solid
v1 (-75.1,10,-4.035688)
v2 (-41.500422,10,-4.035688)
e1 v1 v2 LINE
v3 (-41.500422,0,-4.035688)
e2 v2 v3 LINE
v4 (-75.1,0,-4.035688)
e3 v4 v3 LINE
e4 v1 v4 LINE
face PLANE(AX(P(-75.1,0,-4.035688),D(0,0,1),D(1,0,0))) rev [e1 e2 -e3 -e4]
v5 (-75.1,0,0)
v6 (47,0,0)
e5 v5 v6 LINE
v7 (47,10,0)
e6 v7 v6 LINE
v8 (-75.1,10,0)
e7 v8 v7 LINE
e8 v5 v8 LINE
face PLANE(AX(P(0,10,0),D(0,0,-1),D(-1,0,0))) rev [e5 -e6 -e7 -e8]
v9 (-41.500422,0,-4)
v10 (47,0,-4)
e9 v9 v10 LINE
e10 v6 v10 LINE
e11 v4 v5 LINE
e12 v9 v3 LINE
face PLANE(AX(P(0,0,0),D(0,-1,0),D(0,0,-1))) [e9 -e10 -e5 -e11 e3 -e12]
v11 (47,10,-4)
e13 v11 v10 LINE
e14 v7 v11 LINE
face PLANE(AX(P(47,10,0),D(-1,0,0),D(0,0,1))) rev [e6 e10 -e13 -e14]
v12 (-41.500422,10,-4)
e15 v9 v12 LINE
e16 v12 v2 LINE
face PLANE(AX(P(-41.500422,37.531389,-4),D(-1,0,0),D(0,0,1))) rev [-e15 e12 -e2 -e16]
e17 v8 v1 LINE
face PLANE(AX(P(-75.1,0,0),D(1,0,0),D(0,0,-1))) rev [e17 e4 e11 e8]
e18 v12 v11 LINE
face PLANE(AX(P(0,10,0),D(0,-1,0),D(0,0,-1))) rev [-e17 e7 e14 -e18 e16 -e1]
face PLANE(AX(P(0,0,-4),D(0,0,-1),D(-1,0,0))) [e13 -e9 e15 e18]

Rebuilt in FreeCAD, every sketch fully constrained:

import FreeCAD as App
import Part
import Sketcher

V = App.Vector
Q = App.Units.Quantity


def add_polygon(sketch, points):
    """Adds a closed chain of lines whose ends are joined by coincident constraints."""
    first, n = sketch.GeometryCount, len(points)
    for a, b in zip(points, points[1:] + points[:1]):
        sketch.addGeometry(Part.LineSegment(App.Vector(*a, 0), App.Vector(*b, 0)), False)
    for i in range(n):
        sketch.addConstraint(Sketcher.Constraint("Coincident", first + i, 2, first + (i + 1) % n, 1))

doc = App.newDocument("Part")
body = doc.addObject("PartDesign::Body", "Body")

sketch1 = body.newObject("Sketcher::SketchObject", "Sketch")
sketch1.AttachmentSupport = (doc.getObject("XZ_Plane"), [""])
sketch1.MapMode = "FlatFace"
add_polygon(sketch1, [(0, -22), (0, 0), (47, 0), (47, -22)])
sketch1.addConstraint([
    Sketcher.Constraint("Vertical", 0),
    Sketcher.Constraint("Horizontal", 1),
    Sketcher.Constraint("Vertical", 2),
    Sketcher.Constraint("Horizontal", 3),
    Sketcher.Constraint("Coincident", 0, 2, -1, 1),
    Sketcher.Constraint("DistanceX", 1, 1, 1, 2, Q("47 mm")),
    Sketcher.Constraint("DistanceY", 0, 1, 0, 2, Q("22 mm")),
])
pad1 = body.newObject("PartDesign::Pad", "Pad")
pad1.Profile = sketch1
pad1.Length = 10
pad1.Reversed = True

sketch2 = body.newObject("Sketcher::SketchObject", "Sketch001")
sketch2.AttachmentSupport = (doc.getObject("YZ_Plane"), [""])
sketch2.MapMode = "FlatFace"
add_polygon(sketch2, [(10, -4), (0, -4), (0, 0), (10, 0)])
sketch2.addConstraint([
    Sketcher.Constraint("Horizontal", 0),
    Sketcher.Constraint("Vertical", 1),
    Sketcher.Constraint("Horizontal", 2),
    Sketcher.Constraint("Vertical", 3),
    Sketcher.Constraint("Coincident", 1, 2, -1, 1),
    Sketcher.Constraint("DistanceX", 0, 2, 0, 1, Q("10 mm")),
    Sketcher.Constraint("DistanceY", 1, 1, 1, 2, Q("4.035688 mm")),
])
pad2 = body.newObject("PartDesign::Pad", "Pad001")
pad2.Profile = sketch2
pad2.Length = 75.1
pad2.Reversed = True

sketch3 = body.newObject("Sketcher::SketchObject", "Sketch002")
sketch3.AttachmentSupport = (doc.getObject("XY_Plane"), [""])
sketch3.MapMode = "FlatFace"
sketch3.AttachmentOffset = App.Placement(V(0, 0, -22), App.Rotation())
add_polygon(sketch3, [(79, 38), (79, -29), (-42, -29), (-42, 38)])
sketch3.addConstraint([
    Sketcher.Constraint("Vertical", 0),
    Sketcher.Constraint("Horizontal", 1),
    Sketcher.Constraint("Vertical", 2),
    Sketcher.Constraint("Horizontal", 3),
    Sketcher.Constraint("DistanceX", 1, 2, 1, 1, Q("120.095595 mm")),
    Sketcher.Constraint("DistanceY", 0, 2, 0, 1, Q("66.646456 mm")),
    Sketcher.Constraint("DistanceX", 1, 2, -1, 1, Q("41.500422 mm")),
    Sketcher.Constraint("DistanceY", -1, 1, 2, 2, Q("37.531389 mm")),
])
pocket1 = body.newObject("PartDesign::Pocket", "Pocket")
pocket1.Profile = sketch3
pocket1.Length = 18
pocket1.Reversed = True

doc.recompute()
